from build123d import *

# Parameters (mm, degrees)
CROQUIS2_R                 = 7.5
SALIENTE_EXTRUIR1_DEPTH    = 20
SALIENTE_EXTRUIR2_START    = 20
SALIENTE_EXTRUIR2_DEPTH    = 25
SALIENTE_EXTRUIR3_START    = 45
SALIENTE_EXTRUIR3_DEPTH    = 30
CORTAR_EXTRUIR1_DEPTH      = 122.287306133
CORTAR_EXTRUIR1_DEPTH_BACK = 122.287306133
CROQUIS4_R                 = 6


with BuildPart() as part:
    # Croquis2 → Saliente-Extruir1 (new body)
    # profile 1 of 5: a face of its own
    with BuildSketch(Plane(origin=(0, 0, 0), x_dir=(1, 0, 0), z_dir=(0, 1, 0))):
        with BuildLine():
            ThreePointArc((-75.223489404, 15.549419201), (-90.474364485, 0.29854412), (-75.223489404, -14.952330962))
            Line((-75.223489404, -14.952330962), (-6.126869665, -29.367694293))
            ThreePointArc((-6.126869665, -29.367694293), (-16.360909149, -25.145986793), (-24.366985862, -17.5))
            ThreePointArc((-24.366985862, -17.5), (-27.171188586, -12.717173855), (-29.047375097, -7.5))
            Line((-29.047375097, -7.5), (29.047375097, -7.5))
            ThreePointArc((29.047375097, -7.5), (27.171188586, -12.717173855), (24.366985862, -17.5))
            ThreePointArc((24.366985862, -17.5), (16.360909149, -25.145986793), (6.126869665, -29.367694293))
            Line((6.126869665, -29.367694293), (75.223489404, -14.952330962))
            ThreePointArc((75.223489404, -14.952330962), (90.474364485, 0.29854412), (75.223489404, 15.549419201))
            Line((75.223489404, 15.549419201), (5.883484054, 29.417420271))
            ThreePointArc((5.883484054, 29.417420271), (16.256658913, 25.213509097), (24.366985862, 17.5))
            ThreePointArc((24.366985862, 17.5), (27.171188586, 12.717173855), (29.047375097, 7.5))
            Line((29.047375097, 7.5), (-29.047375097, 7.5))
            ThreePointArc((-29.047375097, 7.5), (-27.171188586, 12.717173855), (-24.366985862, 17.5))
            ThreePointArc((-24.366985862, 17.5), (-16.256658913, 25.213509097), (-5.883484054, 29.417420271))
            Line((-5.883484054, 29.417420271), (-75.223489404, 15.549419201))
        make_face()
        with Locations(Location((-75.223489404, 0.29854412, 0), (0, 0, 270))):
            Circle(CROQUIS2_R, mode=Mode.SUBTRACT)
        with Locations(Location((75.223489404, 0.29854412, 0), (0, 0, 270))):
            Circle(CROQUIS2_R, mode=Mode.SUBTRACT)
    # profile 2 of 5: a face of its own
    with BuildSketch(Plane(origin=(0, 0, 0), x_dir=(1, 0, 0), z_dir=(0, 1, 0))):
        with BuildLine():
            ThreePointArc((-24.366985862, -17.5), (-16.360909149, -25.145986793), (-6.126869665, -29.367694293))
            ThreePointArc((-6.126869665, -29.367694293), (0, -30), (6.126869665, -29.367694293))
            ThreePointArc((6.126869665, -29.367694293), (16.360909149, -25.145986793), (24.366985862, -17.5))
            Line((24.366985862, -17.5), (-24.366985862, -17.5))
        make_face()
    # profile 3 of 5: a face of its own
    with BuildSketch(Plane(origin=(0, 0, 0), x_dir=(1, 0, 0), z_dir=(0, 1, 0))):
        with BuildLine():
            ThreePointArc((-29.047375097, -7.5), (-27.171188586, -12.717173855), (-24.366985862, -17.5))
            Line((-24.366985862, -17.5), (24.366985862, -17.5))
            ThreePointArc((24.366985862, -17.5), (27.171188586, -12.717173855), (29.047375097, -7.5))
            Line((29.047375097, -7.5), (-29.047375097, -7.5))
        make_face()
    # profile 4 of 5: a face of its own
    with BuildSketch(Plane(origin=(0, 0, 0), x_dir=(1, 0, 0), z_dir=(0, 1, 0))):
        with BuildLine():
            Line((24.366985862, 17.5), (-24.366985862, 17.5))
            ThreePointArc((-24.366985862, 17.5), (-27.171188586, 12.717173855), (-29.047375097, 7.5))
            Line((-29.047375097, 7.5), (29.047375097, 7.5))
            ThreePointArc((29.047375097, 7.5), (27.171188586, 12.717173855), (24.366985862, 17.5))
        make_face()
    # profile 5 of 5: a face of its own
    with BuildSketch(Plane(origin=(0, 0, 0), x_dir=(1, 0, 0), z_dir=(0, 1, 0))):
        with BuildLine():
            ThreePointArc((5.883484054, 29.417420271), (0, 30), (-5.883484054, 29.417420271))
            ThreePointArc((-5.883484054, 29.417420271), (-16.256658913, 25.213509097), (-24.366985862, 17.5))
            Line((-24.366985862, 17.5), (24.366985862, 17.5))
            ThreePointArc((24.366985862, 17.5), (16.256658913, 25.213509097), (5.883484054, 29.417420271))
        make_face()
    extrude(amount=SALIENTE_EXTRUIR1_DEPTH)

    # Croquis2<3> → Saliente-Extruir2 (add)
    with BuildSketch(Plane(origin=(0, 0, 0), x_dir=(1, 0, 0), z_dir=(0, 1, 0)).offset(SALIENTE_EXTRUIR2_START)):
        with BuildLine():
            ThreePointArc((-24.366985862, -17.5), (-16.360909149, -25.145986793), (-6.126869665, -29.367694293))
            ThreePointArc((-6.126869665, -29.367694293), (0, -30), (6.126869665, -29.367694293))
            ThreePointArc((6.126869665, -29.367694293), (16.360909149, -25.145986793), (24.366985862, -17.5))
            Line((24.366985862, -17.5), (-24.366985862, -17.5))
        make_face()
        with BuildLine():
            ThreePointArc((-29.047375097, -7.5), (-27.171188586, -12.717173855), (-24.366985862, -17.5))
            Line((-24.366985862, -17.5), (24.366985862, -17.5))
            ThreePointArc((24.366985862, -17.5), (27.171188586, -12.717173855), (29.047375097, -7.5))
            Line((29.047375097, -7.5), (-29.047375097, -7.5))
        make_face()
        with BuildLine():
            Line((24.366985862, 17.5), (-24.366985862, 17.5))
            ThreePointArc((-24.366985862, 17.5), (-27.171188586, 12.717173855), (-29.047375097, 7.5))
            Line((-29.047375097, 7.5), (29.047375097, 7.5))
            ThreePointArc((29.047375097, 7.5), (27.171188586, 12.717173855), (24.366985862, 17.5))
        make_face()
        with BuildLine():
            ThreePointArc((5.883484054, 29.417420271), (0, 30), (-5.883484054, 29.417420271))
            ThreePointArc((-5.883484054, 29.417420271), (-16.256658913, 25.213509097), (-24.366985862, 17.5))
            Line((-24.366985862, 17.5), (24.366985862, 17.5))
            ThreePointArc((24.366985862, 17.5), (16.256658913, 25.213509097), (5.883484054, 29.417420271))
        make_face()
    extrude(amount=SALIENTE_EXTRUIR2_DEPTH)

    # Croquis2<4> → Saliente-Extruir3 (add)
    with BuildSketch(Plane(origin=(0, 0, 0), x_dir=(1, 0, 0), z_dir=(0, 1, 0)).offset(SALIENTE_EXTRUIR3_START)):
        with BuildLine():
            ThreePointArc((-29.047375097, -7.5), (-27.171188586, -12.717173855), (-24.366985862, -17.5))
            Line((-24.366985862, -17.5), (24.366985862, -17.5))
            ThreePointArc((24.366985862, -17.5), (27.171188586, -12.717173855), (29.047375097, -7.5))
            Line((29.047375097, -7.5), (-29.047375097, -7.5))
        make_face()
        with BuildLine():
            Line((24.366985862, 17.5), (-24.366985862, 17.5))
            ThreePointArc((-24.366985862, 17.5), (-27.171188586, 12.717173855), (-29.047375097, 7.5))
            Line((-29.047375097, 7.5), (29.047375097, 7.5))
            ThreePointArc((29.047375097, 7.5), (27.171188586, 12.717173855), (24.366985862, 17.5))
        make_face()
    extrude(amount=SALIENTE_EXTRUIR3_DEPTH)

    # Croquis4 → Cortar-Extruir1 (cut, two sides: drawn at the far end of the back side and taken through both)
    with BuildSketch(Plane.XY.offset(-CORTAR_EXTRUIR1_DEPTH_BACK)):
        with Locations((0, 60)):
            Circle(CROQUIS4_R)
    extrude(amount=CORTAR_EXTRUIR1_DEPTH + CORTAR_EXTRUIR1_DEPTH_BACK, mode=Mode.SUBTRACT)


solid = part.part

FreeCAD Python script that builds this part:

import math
import FreeCAD as App
import Part
import Sketcher

V = App.Vector

doc = App.newDocument("Part")
body = doc.addObject("PartDesign::Body", "Body")

# Sketch on XZ plane
sketch1 = body.newObject("Sketcher::SketchObject", "Sketch")
sketch1.AttachmentSupport = (doc.getObject("XZ_Plane"), [""])
sketch1.MapMode = "FlatFace"
sketch1.addGeometry(Part.ArcOfCircle(Part.Circle(V(-75.223489, -0.298544, 0), V(0, 0, 1), 15.250875), math.radians(90), math.radians(270)), False)
sketch1.addGeometry(Part.LineSegment(V(-75.223489, 14.952331, 0), V(-6.12687, 29.367694, 0)), False)
sketch1.addGeometry(Part.ArcOfCircle(Part.Circle(V(0, 0, 0), V(0, 0, 1), 30), math.radians(78.215631), math.radians(101.784369)), False)
sketch1.addGeometry(Part.LineSegment(V(6.12687, 29.367694, 0), V(75.223489, 14.952331, 0)), False)
sketch1.addGeometry(Part.ArcOfCircle(Part.Circle(V(75.223489, -0.298544, 0), V(0, 0, 1), 15.250875), math.radians(-90), math.radians(90)), False)
sketch1.addGeometry(Part.LineSegment(V(75.223489, -15.549419, 0), V(5.883484, -29.41742, 0)), False)
sketch1.addGeometry(Part.ArcOfCircle(Part.Circle(V(0, 0, 0), V(0, 0, 1), 30), math.radians(-101.309932), math.radians(-78.690068)), False)
sketch1.addGeometry(Part.LineSegment(V(-5.883484, -29.41742, 0), V(-75.223489, -15.549419, 0)), False)
sketch1.addGeometry(Part.Circle(V(-75.223489, -0.298544, 0), V(0, 0, 1), 7.5), False)
sketch1.addGeometry(Part.Circle(V(75.223489, -0.298544, 0), V(0, 0, 1), 7.5), False)
sketch1.addConstraint(Sketcher.Constraint("Coincident", 0, 1, 1, 1))
sketch1.addConstraint(Sketcher.Constraint("Tangent", 1, 2, 2, 2))
sketch1.addConstraint(Sketcher.Constraint("Tangent", 2, 1, 3, 1))
sketch1.addConstraint(Sketcher.Constraint("Coincident", 3, 2, 4, 2))
sketch1.addConstraint(Sketcher.Constraint("Coincident", 4, 1, 5, 1))
sketch1.addConstraint(Sketcher.Constraint("Tangent", 5, 2, 6, 2))
sketch1.addConstraint(Sketcher.Constraint("Tangent", 6, 1, 7, 1))
sketch1.addConstraint(Sketcher.Constraint("Coincident", 7, 2, 0, 2))
sketch1.addConstraint(Sketcher.Constraint("Coincident", 2, 3, -1, 1))
sketch1.addConstraint(Sketcher.Constraint("Coincident", 6, 3, -1, 1))
sketch1.addConstraint(Sketcher.Constraint("Coincident", 8, 3, 0, 3))
sketch1.addConstraint(Sketcher.Constraint("Coincident", 9, 3, 4, 3))
sketch1.addConstraint(Sketcher.Constraint("Equal", 0, 4))
sketch1.addConstraint(Sketcher.Constraint("Equal", 2, 6))
sketch1.addConstraint(Sketcher.Constraint("Equal", 8, 9))
sketch1.addConstraint(Sketcher.Constraint("Symmetric", 0, 3, 4, 3, -2))
sketch1.addConstraint(Sketcher.Constraint("Horizontal", 1, 2, 2, 1))
sketch1.addConstraint(Sketcher.Constraint("Horizontal", 5, 2, 6, 1))
sketch1.addConstraint(Sketcher.Constraint("Vertical", 8, 3, 0, 1))
sketch1.addConstraint(Sketcher.Constraint("Vertical", 3, 2, 4, 1))
sketch1.addConstraint(Sketcher.Constraint("Diameter", 8, 15.0))
sketch1.addConstraint(Sketcher.Constraint("Radius", 2, 30.0))
sketch1.addConstraint(Sketcher.Constraint("Radius", 0, 15.250875))
sketch1.addConstraint(Sketcher.Constraint("DistanceY", 5, 2, 4, 1, 13.868001))
sketch1.addConstraint(Sketcher.Constraint("Distance", 5, 70.713208))
pad1 = body.newObject("PartDesign::Pad", "Pad")
pad1.Profile = sketch1
pad1.Length = 20
pad1.Reversed = True

# Sketch on XZ plane
sketch2 = body.newObject("Sketcher::SketchObject", "Sketch001")
sketch2.AttachmentSupport = (doc.getObject("XZ_Plane"), [""])
sketch2.MapMode = "FlatFace"
sketch2.AttachmentOffset = App.Placement(V(0, 0, -20), App.Rotation())
sketch2.addGeometry(Part.ArcOfCircle(Part.Circle(V(0, 0, 0), V(0, 0, 1), 30), math.radians(101.784369), math.radians(144.314665)), False)
sketch2.addGeometry(Part.ArcOfCircle(Part.Circle(V(0, 0, 0), V(0, 0, 1), 30), math.radians(78.215631), math.radians(101.784369)), False)
sketch2.addGeometry(Part.ArcOfCircle(Part.Circle(V(0, 0, 0), V(0, 0, 1), 30), math.radians(35.685335), math.radians(78.215631)), False)
sketch2.addGeometry(Part.ArcOfCircle(Part.Circle(V(0, 0, 0), V(0, 0, 1), 30), math.radians(14.477512), math.radians(35.685335)), False)
sketch2.addGeometry(Part.LineSegment(V(29.047375, 7.5, 0), V(-29.047375, 7.5, 0)), False)
sketch2.addGeometry(Part.ArcOfCircle(Part.Circle(V(0, 0, 0), V(0, 0, 1), 30), math.radians(144.314665), math.radians(165.522488)), False)
sketch2.addGeometry(Part.ArcOfCircle(Part.Circle(V(0, 0, 0), V(0, 0, 1), 30), math.radians(-165.522488), math.radians(-144.314665)), False)
sketch2.addGeometry(Part.LineSegment(V(-29.047375, -7.5, 0), V(29.047375, -7.5, 0)), False)
sketch2.addGeometry(Part.ArcOfCircle(Part.Circle(V(0, 0, 0), V(0, 0, 1), 30), math.radians(-35.685335), math.radians(-14.477512)), False)
sketch2.addGeometry(Part.ArcOfCircle(Part.Circle(V(0, 0, 0), V(0, 0, 1), 30), math.radians(-78.690068), math.radians(-35.685335)), False)
sketch2.addGeometry(Part.ArcOfCircle(Part.Circle(V(0, 0, 0), V(0, 0, 1), 30), math.radians(-101.309932), math.radians(-78.690068)), False)
sketch2.addGeometry(Part.ArcOfCircle(Part.Circle(V(0, 0, 0), V(0, 0, 1), 30), math.radians(-144.314665), math.radians(-101.309932)), False)
sketch2.addConstraint(Sketcher.Constraint("Tangent", 0, 1, 1, 2))
sketch2.addConstraint(Sketcher.Constraint("Tangent", 1, 1, 2, 2))
sketch2.addConstraint(Sketcher.Constraint("Tangent", 2, 1, 3, 2))
sketch2.addConstraint(Sketcher.Constraint("Coincident", 3, 1, 4, 1))
sketch2.addConstraint(Sketcher.Constraint("Coincident", 4, 2, 5, 2))
sketch2.addConstraint(Sketcher.Constraint("Tangent", 5, 1, 0, 2))
sketch2.addConstraint(Sketcher.Constraint("Coincident", 6, 1, 7, 1))
sketch2.addConstraint(Sketcher.Constraint("Coincident", 7, 2, 8, 2))
sketch2.addConstraint(Sketcher.Constraint("Tangent", 8, 1, 9, 2))
sketch2.addConstraint(Sketcher.Constraint("Tangent", 9, 1, 10, 2))
sketch2.addConstraint(Sketcher.Constraint("Tangent", 10, 1, 11, 2))
sketch2.addConstraint(Sketcher.Constraint("Tangent", 11, 1, 6, 2))
sketch2.addConstraint(Sketcher.Constraint("Horizontal", 4))
sketch2.addConstraint(Sketcher.Constraint("Horizontal", 7))
sketch2.addConstraint(Sketcher.Constraint("Coincident", 0, 3, -1, 1))
sketch2.addConstraint(Sketcher.Constraint("Coincident", 2, 3, -1, 1))
sketch2.addConstraint(Sketcher.Constraint("Coincident", 6, 3, -1, 1))
sketch2.addConstraint(Sketcher.Constraint("Coincident", 8, 3, -1, 1))
sketch2.addConstraint(Sketcher.Constraint("Coincident", 10, 3, -1, 1))
sketch2.addConstraint(Sketcher.Constraint("Equal", 2, 3))
sketch2.addConstraint(Sketcher.Constraint("Equal", 3, 5))
sketch2.addConstraint(Sketcher.Constraint("Equal", 5, 6))
sketch2.addConstraint(Sketcher.Constraint("Horizontal", 0, 1, 1, 1))
sketch2.addConstraint(Sketcher.Constraint("Horizontal", 2, 1, 5, 1))
sketch2.addConstraint(Sketcher.Constraint("Horizontal", 9, 1, 10, 1))
sketch2.addConstraint(Sketcher.Constraint("Horizontal", 8, 1, 11, 1))
sketch2.addConstraint(Sketcher.Constraint("Vertical", 4, 2, 6, 1))
sketch2.addConstraint(Sketcher.Constraint("Vertical", 2, 1, 8, 1))
sketch2.addConstraint(Sketcher.Constraint("Radius", 0, 30.0))
sketch2.addConstraint(Sketcher.Constraint("DistanceY", 3, 1, 2, 1, 10.0))
sketch2.addConstraint(Sketcher.Constraint("DistanceY", 6, 1, 4, 2, 15.0))
sketch2.addConstraint(Sketcher.Constraint("DistanceX", 9, 1, 8, 1, 18.483502))
sketch2.addConstraint(Sketcher.Constraint("DistanceX", 0, 1, -1, 1, 6.12687))
pad2 = body.newObject("PartDesign::Pad", "Pad001")
pad2.Profile = sketch2
pad2.Length = 25
pad2.Reversed = True

# Sketch on XZ plane
sketch3 = body.newObject("Sketcher::SketchObject", "Sketch002")
sketch3.AttachmentSupport = (doc.getObject("XZ_Plane"), [""])
sketch3.MapMode = "FlatFace"
sketch3.AttachmentOffset = App.Placement(V(0, 0, -45), App.Rotation())
sketch3.addGeometry(Part.ArcOfCircle(Part.Circle(V(0, 0, 0), V(0, 0, 1), 30), math.radians(144.314665), math.radians(165.522488)), False)
sketch3.addGeometry(Part.LineSegment(V(-24.366986, 17.5, 0), V(24.366986, 17.5, 0)), False)
sketch3.addGeometry(Part.ArcOfCircle(Part.Circle(V(0, 0, 0), V(0, 0, 1), 30), math.radians(14.477512), math.radians(35.685335)), False)
sketch3.addGeometry(Part.LineSegment(V(29.047375, 7.5, 0), V(-29.047375, 7.5, 0)), False)
sketch3.addGeometry(Part.LineSegment(V(24.366986, -17.5, 0), V(-24.366986, -17.5, 0)), False)
sketch3.addGeometry(Part.ArcOfCircle(Part.Circle(V(0, 0, 0), V(0, 0, 1), 30), math.radians(-165.522488), math.radians(-144.314665)), False)
sketch3.addGeometry(Part.LineSegment(V(-29.047375, -7.5, 0), V(29.047375, -7.5, 0)), False)
sketch3.addGeometry(Part.ArcOfCircle(Part.Circle(V(0, 0, 0), V(0, 0, 1), 30), math.radians(-35.685335), math.radians(-14.477512)), False)
sketch3.addConstraint(Sketcher.Constraint("Coincident", 0, 1, 1, 1))
sketch3.addConstraint(Sketcher.Constraint("Coincident", 1, 2, 2, 2))
sketch3.addConstraint(Sketcher.Constraint("Coincident", 2, 1, 3, 1))
sketch3.addConstraint(Sketcher.Constraint("Coincident", 3, 2, 0, 2))
sketch3.addConstraint(Sketcher.Constraint("Coincident", 4, 2, 5, 2))
sketch3.addConstraint(Sketcher.Constraint("Coincident", 5, 1, 6, 1))
sketch3.addConstraint(Sketcher.Constraint("Coincident", 6, 2, 7, 2))
sketch3.addConstraint(Sketcher.Constraint("Coincident", 7, 1, 4, 1))
sketch3.addConstraint(Sketcher.Constraint("Horizontal", 1))
sketch3.addConstraint(Sketcher.Constraint("Horizontal", 3))
sketch3.addConstraint(Sketcher.Constraint("Horizontal", 4))
sketch3.addConstraint(Sketcher.Constraint("Horizontal", 6))
sketch3.addConstraint(Sketcher.Constraint("Coincident", 0, 3, -1, 1))
sketch3.addConstraint(Sketcher.Constraint("Coincident", 2, 3, -1, 1))
sketch3.addConstraint(Sketcher.Constraint("Coincident", 5, 3, -1, 1))
sketch3.addConstraint(Sketcher.Constraint("Coincident", 7, 3, -1, 1))
sketch3.addConstraint(Sketcher.Constraint("Equal", 0, 2))
sketch3.addConstraint(Sketcher.Constraint("Equal", 2, 5))
sketch3.addConstraint(Sketcher.Constraint("Equal", 5, 7))
sketch3.addConstraint(Sketcher.Constraint("Vertical", 0, 1, 4, 2))
sketch3.addConstraint(Sketcher.Constraint("Vertical", 3, 2, 5, 1))
sketch3.addConstraint(Sketcher.Constraint("Radius", 0, 30.0))
sketch3.addConstraint(Sketcher.Constraint("DistanceY", 2, 1, 1, 2, 10.0))
sketch3.addConstraint(Sketcher.Constraint("DistanceY", 4, 2, 3, 2, 25.0))
pad3 = body.newObject("PartDesign::Pad", "Pad002")
pad3.Profile = sketch3
pad3.Length = 30
pad3.Reversed = True

# Sketch on XY plane
sketch4 = body.newObject("Sketcher::SketchObject", "Sketch003")
sketch4.AttachmentSupport = (doc.getObject("XY_Plane"), [""])
sketch4.MapMode = "FlatFace"
sketch4.addGeometry(Part.Circle(V(0, 60, 0), V(0, 0, 1), 6), False)
sketch4.addConstraint(Sketcher.Constraint("PointOnObject", 0, 3, -2))
sketch4.addConstraint(Sketcher.Constraint("Diameter", 0, 12.0))
sketch4.addConstraint(Sketcher.Constraint("DistanceY", -1, 1, 0, 3, 60.0))
pocket1 = body.newObject("PartDesign::Pocket", "Pocket")
pocket1.Profile = sketch4
pocket1.Type = "ThroughAll"
pocket1.Midplane = True

doc.recompute()
